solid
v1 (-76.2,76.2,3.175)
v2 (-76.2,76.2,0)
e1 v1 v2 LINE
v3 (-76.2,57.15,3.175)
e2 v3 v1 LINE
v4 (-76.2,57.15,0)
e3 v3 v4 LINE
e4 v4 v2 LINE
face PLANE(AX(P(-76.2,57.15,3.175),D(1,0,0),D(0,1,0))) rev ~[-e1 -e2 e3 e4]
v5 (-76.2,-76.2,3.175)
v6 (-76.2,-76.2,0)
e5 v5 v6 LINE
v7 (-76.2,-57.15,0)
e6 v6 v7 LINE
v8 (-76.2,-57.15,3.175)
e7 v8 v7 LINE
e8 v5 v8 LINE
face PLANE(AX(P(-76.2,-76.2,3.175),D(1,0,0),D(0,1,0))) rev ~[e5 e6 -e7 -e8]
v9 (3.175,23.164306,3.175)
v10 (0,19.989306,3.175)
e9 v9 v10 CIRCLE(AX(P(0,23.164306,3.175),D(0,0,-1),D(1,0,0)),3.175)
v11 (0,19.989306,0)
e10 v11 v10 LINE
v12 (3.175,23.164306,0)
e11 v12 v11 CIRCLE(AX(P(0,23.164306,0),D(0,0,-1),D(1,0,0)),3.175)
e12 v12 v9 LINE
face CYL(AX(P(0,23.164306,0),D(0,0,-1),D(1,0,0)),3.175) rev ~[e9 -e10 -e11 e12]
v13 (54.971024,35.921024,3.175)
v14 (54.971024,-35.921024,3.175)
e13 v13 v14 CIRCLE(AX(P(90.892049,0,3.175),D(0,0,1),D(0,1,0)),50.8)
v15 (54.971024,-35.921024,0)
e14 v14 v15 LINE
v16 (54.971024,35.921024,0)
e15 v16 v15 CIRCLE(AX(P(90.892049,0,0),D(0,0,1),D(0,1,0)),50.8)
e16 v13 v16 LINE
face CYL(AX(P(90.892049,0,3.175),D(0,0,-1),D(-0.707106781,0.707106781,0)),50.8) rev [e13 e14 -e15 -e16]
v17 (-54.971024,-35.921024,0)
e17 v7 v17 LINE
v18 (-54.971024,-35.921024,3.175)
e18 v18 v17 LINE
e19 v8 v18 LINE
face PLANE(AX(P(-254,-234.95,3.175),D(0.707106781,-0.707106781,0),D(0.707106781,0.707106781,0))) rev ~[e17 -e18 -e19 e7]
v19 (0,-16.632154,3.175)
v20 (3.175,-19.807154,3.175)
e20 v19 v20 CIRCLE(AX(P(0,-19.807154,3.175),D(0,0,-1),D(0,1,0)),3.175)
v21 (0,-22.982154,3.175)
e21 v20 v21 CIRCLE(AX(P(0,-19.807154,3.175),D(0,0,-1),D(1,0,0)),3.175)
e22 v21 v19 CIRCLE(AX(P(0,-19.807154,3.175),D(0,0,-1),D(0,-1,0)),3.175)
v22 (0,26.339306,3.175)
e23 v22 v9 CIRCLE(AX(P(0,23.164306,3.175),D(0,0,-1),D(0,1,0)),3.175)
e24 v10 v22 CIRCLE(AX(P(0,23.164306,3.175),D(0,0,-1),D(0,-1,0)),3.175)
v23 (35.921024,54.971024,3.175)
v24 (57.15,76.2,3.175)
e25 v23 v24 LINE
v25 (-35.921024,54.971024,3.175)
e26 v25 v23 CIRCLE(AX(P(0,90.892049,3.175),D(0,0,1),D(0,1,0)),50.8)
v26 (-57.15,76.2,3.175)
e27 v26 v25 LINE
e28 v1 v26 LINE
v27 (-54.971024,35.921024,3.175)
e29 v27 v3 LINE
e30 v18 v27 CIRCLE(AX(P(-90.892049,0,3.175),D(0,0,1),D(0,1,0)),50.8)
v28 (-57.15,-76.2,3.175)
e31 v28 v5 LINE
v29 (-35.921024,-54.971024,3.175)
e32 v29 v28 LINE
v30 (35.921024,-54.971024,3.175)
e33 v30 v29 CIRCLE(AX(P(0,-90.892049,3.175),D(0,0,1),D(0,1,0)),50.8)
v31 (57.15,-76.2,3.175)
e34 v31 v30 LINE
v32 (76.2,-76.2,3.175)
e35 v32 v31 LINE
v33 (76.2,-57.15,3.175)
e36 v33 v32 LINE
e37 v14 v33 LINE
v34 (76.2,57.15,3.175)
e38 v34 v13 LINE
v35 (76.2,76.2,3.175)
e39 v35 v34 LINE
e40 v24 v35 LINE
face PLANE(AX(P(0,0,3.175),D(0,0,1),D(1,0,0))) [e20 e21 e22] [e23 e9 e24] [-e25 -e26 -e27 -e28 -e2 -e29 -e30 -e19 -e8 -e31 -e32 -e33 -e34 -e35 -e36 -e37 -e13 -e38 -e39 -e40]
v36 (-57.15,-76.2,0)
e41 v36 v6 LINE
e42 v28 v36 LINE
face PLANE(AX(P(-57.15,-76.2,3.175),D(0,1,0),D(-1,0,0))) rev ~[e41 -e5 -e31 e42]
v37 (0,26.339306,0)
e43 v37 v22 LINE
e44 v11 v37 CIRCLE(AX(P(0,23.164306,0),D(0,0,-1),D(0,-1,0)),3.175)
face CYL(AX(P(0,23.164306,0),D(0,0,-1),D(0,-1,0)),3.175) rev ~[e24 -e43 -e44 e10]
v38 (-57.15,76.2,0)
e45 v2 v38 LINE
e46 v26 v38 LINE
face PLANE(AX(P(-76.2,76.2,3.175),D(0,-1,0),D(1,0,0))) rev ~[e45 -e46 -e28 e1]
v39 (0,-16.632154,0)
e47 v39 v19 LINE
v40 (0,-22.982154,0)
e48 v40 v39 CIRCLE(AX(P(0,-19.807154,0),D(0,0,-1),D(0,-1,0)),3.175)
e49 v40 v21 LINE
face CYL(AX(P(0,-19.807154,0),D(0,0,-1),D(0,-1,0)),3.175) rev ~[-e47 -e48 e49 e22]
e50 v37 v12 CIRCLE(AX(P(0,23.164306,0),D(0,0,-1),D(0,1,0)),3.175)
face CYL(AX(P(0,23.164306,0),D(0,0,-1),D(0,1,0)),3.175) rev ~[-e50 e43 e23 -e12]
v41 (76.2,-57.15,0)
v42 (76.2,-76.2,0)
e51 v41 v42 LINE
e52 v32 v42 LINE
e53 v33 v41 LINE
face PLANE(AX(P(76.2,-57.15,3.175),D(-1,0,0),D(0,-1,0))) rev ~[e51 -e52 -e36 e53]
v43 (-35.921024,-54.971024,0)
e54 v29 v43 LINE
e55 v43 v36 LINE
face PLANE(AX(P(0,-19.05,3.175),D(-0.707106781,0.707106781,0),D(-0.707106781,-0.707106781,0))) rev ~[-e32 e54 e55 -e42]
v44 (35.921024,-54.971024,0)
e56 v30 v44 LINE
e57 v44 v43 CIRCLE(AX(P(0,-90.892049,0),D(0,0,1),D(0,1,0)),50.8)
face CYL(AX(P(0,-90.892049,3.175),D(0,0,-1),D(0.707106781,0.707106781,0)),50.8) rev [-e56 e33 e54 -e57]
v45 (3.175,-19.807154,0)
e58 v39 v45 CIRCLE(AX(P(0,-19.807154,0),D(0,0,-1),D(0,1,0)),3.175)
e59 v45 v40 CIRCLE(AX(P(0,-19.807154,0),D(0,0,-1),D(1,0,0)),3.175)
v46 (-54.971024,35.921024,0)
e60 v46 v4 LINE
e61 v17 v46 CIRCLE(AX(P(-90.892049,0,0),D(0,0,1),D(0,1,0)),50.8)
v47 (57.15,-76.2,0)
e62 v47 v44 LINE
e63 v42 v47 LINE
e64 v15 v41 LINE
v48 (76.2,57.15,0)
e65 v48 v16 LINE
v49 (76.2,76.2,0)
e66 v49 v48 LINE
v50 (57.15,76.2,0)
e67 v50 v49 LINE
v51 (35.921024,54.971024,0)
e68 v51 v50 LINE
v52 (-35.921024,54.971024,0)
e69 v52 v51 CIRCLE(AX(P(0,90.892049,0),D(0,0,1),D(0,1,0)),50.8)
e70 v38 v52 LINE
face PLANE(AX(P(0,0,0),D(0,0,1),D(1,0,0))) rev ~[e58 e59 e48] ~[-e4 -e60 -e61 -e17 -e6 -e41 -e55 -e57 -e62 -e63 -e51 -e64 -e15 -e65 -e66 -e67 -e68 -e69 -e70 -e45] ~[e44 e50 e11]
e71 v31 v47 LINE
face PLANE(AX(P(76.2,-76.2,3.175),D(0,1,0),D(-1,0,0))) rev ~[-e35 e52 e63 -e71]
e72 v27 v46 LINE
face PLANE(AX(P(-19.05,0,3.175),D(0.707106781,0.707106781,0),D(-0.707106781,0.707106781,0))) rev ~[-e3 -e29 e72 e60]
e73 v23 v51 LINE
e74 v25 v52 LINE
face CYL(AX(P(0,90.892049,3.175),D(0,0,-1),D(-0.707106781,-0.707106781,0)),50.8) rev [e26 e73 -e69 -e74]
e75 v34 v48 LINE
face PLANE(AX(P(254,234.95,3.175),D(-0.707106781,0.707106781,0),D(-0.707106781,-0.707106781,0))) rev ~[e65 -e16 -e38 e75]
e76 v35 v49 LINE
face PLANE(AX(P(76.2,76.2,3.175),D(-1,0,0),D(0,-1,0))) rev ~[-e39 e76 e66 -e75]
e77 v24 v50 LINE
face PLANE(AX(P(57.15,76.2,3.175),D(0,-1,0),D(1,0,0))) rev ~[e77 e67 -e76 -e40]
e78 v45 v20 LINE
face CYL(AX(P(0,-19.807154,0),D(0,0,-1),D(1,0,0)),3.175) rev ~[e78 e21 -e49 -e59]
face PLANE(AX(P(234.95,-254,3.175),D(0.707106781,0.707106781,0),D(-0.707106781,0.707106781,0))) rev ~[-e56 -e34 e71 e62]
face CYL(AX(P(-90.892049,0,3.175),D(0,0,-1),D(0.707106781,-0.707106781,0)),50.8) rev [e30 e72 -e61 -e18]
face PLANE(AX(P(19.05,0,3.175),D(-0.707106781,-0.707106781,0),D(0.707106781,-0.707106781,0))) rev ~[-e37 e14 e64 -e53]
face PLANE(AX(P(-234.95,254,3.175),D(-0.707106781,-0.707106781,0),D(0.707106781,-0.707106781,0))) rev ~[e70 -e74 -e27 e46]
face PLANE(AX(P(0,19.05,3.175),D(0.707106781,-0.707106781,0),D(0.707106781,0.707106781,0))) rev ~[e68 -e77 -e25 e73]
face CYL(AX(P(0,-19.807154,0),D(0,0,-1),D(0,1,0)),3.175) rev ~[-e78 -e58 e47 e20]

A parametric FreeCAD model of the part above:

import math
import FreeCAD as App
import Part
import Sketcher
Q = App.Units.Quantity


def edges_at(feature, points):
    """Names of the edges that pass closest to the given points."""
    edges = feature.Shape.Edges
    near = lambda p: min(range(len(edges)), key=lambda i: edges[i].distToShape(Part.Vertex(*p))[0])
    return sorted({f"Edge{near(p) + 1}" for p in points})

doc = App.newDocument("Part")
params = doc.addObject("Spreadsheet::Sheet", "Params")
for row, (alias, value) in enumerate([
    ("sketch1_width", "20 in"),
    ("pad1_length", "0.125 in"),
    ("sketch2_width", "18.5 in"),
    ("fillet_radius", "2 in"),
    ("sketch3_radius", "0.0625 in"),
    ("sketch3_radius2", "0.125 in"),
    ("sketch4_diameter", "0.125 in"),
    ("sketch4_width", "0.75 in"),
], start=1):
    params.set(f"A{row}", alias)
    params.set(f"B{row}", "=" + value)
    params.setAlias(f"B{row}", alias)

body = doc.addObject("PartDesign::Body", "Body")

# Sketch on XY plane
sketch1 = body.newObject("Sketcher::SketchObject", "Sketch")
sketch1.AttachmentSupport = (doc.getObject("XY_Plane"), [""])
sketch1.MapMode = "FlatFace"
sketch1.addGeometry(Part.LineSegment(App.Vector(-254, 254, 0), App.Vector(-254, -254, 0)), False)
sketch1.addGeometry(Part.LineSegment(App.Vector(-254, -254, 0), App.Vector(254, -254, 0)), False)
sketch1.addGeometry(Part.LineSegment(App.Vector(254, -254, 0), App.Vector(254, 254, 0)), False)
sketch1.addGeometry(Part.LineSegment(App.Vector(254, 254, 0), App.Vector(-254, 254, 0)), False)
sketch1.addConstraint(Sketcher.Constraint("Coincident", 0, 2, 1, 1))
sketch1.addConstraint(Sketcher.Constraint("Coincident", 1, 2, 2, 1))
sketch1.addConstraint(Sketcher.Constraint("Coincident", 2, 2, 3, 1))
sketch1.addConstraint(Sketcher.Constraint("Coincident", 3, 2, 0, 1))
sketch1.addConstraint(Sketcher.Constraint("Vertical", 0))
sketch1.addConstraint(Sketcher.Constraint("Horizontal", 1))
sketch1.addConstraint(Sketcher.Constraint("Vertical", 2))
sketch1.addConstraint(Sketcher.Constraint("Horizontal", 3))
sketch1.addConstraint(Sketcher.Constraint("Symmetric", 0, 2, 2, 2, -1, 1))
sketch1.addConstraint(Sketcher.Constraint("Equal", 3, 0))
sketch1.addConstraint(Sketcher.Constraint("DistanceX", 1, 1, 1, 2, Q("20 in")))
sketch1.setExpression("Constraints[10]", "Params.sketch1_width")
pad1 = body.newObject("PartDesign::Pad", "Pad")
pad1.Profile = sketch1
pad1.setExpression("Length", "Params.pad1_length")

# Sketch on XY plane
sketch2 = body.newObject("Sketcher::SketchObject", "Sketch001")
sketch2.AttachmentSupport = (doc.getObject("XY_Plane"), [""])
sketch2.MapMode = "FlatFace"
sketch2.AttachmentOffset = App.Placement(App.Vector(0, 0, 0.125 * 25.4), App.Rotation())
sketch2.addGeometry(Part.LineSegment(App.Vector(-19.05, 0, 0), App.Vector(-254, 234.95, 0)), False)
sketch2.addGeometry(Part.LineSegment(App.Vector(-254, 234.95, 0), App.Vector(-254, -234.95, 0)), False)
sketch2.addGeometry(Part.LineSegment(App.Vector(-254, -234.95, 0), App.Vector(-19.05, 0, 0)), False)
sketch2.addGeometry(Part.LineSegment(App.Vector(-234.95, 254, 0), App.Vector(0, 19.05, 0)), False)
sketch2.addGeometry(Part.LineSegment(App.Vector(0, 19.05, 0), App.Vector(234.95, 254, 0)), False)
sketch2.addGeometry(Part.LineSegment(App.Vector(234.95, 254, 0), App.Vector(-234.95, 254, 0)), False)
sketch2.addGeometry(Part.LineSegment(App.Vector(254, -234.95, 0), App.Vector(254, 234.95, 0)), False)
sketch2.addGeometry(Part.LineSegment(App.Vector(254, 234.95, 0), App.Vector(19.05, 0, 0)), False)
sketch2.addGeometry(Part.LineSegment(App.Vector(19.05, 0, 0), App.Vector(254, -234.95, 0)), False)
sketch2.addGeometry(Part.LineSegment(App.Vector(-234.95, -254, 0), App.Vector(234.95, -254, 0)), False)
sketch2.addGeometry(Part.LineSegment(App.Vector(234.95, -254, 0), App.Vector(0, -19.05, 0)), False)
sketch2.addGeometry(Part.LineSegment(App.Vector(0, -19.05, 0), App.Vector(-234.95, -254, 0)), False)
sketch2.addConstraint(Sketcher.Constraint("Coincident", 0, 2, 1, 1))
sketch2.addConstraint(Sketcher.Constraint("Coincident", 1, 2, 2, 1))
sketch2.addConstraint(Sketcher.Constraint("Coincident", 2, 2, 0, 1))
sketch2.addConstraint(Sketcher.Constraint("Coincident", 3, 2, 4, 1))
sketch2.addConstraint(Sketcher.Constraint("Coincident", 4, 2, 5, 1))
sketch2.addConstraint(Sketcher.Constraint("Coincident", 5, 2, 3, 1))
sketch2.addConstraint(Sketcher.Constraint("Coincident", 6, 2, 7, 1))
sketch2.addConstraint(Sketcher.Constraint("Coincident", 7, 2, 8, 1))
sketch2.addConstraint(Sketcher.Constraint("Coincident", 8, 2, 6, 1))
sketch2.addConstraint(Sketcher.Constraint("Coincident", 9, 2, 10, 1))
sketch2.addConstraint(Sketcher.Constraint("Coincident", 10, 2, 11, 1))
sketch2.addConstraint(Sketcher.Constraint("Coincident", 11, 2, 9, 1))
sketch2.addConstraint(Sketcher.Constraint("Vertical", 1))
sketch2.addConstraint(Sketcher.Constraint("Horizontal", 5))
sketch2.addConstraint(Sketcher.Constraint("Vertical", 6))
sketch2.addConstraint(Sketcher.Constraint("Horizontal", 9))
sketch2.addConstraint(Sketcher.Constraint("Symmetric", 1, 2, 6, 2, -1, 1))
sketch2.addConstraint(Sketcher.Constraint("Symmetric", 2, 2, 7, 2, -1, 1))
sketch2.addConstraint(Sketcher.Constraint("Symmetric", 5, 2, 9, 2, -1, 1))
sketch2.addConstraint(Sketcher.Constraint("Symmetric", 3, 2, 10, 2, -1, 1))
sketch2.addConstraint(Sketcher.Constraint("PointOnObject", 2, 2, -1))
sketch2.addConstraint(Sketcher.Constraint("PointOnObject", 3, 2, -2))
sketch2.addConstraint(Sketcher.Constraint("Perpendicular", 0, 2))
sketch2.addConstraint(Sketcher.Constraint("Perpendicular", 2, 3))
sketch2.addConstraint(Sketcher.Constraint("Perpendicular", 3, 4))
sketch2.addConstraint(Sketcher.Constraint("Perpendicular", 7, 8))
sketch2.addConstraint(Sketcher.Constraint("Perpendicular", 10, 11))
sketch2.addConstraint(Sketcher.Constraint("Horizontal", 0, 2, 6, 2))
sketch2.addConstraint(Sketcher.Constraint("Equal", 9, 1))
sketch2.addConstraint(Sketcher.Constraint("DistanceX", 5, 2, 5, 1, Q("18.5 in")))
sketch2.addConstraint(Sketcher.Constraint("DistanceX", 0, 2, -1, 1, Q("10 in")))
sketch2.addConstraint(Sketcher.Constraint("DistanceY", -1, 1, 4, 2, Q("10 in")))
sketch2.setExpression("Constraints[29]", "Params.sketch2_width")
pocket1 = body.newObject("PartDesign::Pocket", "Pocket")
pocket1.Profile = sketch2
pocket1.Type = "ThroughAll"
doc.recompute()

fillet = body.newObject("PartDesign::Fillet", "Fillet")
fillet.Base = (pocket1, edges_at(pocket1, [
    (-19.05, 0, 1.587),
    (0, -19.05, 1.587),
    (19.05, 0, 1.587),
    (0, 19.05, 1.587),
]))
fillet.setExpression("Radius", "Params.fillet_radius")

# Sketch on XY plane
sketch3 = body.newObject("Sketcher::SketchObject", "Sketch002")
sketch3.AttachmentSupport = (doc.getObject("XY_Plane"), [""])
sketch3.MapMode = "FlatFace"
sketch3.addGeometry(Part.ArcOfCircle(Part.Circle(App.Vector(-235.565272, 248.658633, 0), App.Vector(0, 0, 1), 1.5875), math.radians(-121.412172), math.radians(-80.00255)), False)
sketch3.addGeometry(Part.ArcOfCircle(Part.Circle(App.Vector(-235.565272, 248.658633, 0), App.Vector(0, 0, 1), 1.5875), math.radians(-162.821794), math.radians(-121.412172)), False)
sketch3.addGeometry(Part.ArcOfCircle(Part.Circle(App.Vector(-235.565272, 248.658633, 0), App.Vector(0, 0, 1), 1.5875), math.radians(0), math.radians(197.178206)), False)
sketch3.addGeometry(Part.ArcOfCircle(Part.Circle(App.Vector(-235.565272, 248.658633, 0), App.Vector(0, 0, 1), 1.5875), math.radians(-80.00255), math.radians(0)), False)
sketch3.addGeometry(Part.ArcOfCircle(Part.Circle(App.Vector(-247.698735, 244.907756, 0), App.Vector(0, 0, 1), 1.5875), math.radians(17.178206), math.radians(279.99745)), False)
sketch3.addGeometry(Part.ArcOfCircle(Part.Circle(App.Vector(-247.698735, 244.907756, 0), App.Vector(0, 0, 1), 1.5875), math.radians(0), math.radians(17.178206)), False)
sketch3.addGeometry(Part.ArcOfCircle(Part.Circle(App.Vector(-247.698735, 244.907756, 0), App.Vector(0, 0, 1), 1.5875), math.radians(-80.00255), math.radians(0)), False)
sketch3.addGeometry(Part.ArcOfCircle(Part.Circle(App.Vector(-245.49396, 232.400599, 0), App.Vector(0, 0, 1), 1.5875), math.radians(17.178206), math.radians(58.587828)), False)
sketch3.addGeometry(Part.ArcOfCircle(Part.Circle(App.Vector(-245.49396, 232.400599, 0), App.Vector(0, 0, 1), 1.5875), math.radians(0), math.radians(17.178206)), False)
sketch3.addGeometry(Part.ArcOfCircle(Part.Circle(App.Vector(-245.49396, 232.400599, 0), App.Vector(0, 0, 1), 1.5875), math.radians(99.99745), math.radians(360)), False)
sketch3.addGeometry(Part.ArcOfCircle(Part.Circle(App.Vector(-245.49396, 232.400599, 0), App.Vector(0, 0, 1), 1.5875), math.radians(58.587828), math.radians(99.99745)), False)
sketch3.addGeometry(Part.ArcOfCircle(Part.Circle(App.Vector(-233.360497, 236.151476, 0), App.Vector(0, 0, 1), 1.5875), math.radians(-162.821794), math.radians(0)), False)
sketch3.addGeometry(Part.ArcOfCircle(Part.Circle(App.Vector(-233.360497, 236.151476, 0), App.Vector(0, 0, 1), 1.5875), math.radians(99.99745), math.radians(197.178206)), False)
sketch3.addGeometry(Part.ArcOfCircle(Part.Circle(App.Vector(-233.360497, 236.151476, 0), App.Vector(0, 0, 1), 1.5875), math.radians(0), math.radians(99.99745)), False)
sketch3.addGeometry(Part.ArcOfCircle(Part.Circle(App.Vector(-233.360497, -244.907756, 0), App.Vector(0, 0, 1), 1.5875), math.radians(0), math.radians(99.99745)), False)
sketch3.addGeometry(Part.ArcOfCircle(Part.Circle(App.Vector(-233.360497, -244.907756, 0), App.Vector(0, 0, 1), 1.5875), math.radians(-162.821794), math.radians(0)), False)
sketch3.addGeometry(Part.ArcOfCircle(Part.Circle(App.Vector(-233.360497, -244.907756, 0), App.Vector(0, 0, 1), 1.5875), math.radians(99.99745), math.radians(197.178206)), False)
sketch3.addGeometry(Part.ArcOfCircle(Part.Circle(App.Vector(-245.49396, -248.658633, 0), App.Vector(0, 0, 1), 1.5875), math.radians(17.178206), math.radians(58.587828)), False)
sketch3.addGeometry(Part.ArcOfCircle(Part.Circle(App.Vector(-245.49396, -248.658633, 0), App.Vector(0, 0, 1), 1.5875), math.radians(0), math.radians(17.178206)), False)
sketch3.addGeometry(Part.ArcOfCircle(Part.Circle(App.Vector(-245.49396, -248.658633, 0), App.Vector(0, 0, 1), 1.5875), math.radians(99.99745), math.radians(360)), False)
sketch3.addGeometry(Part.ArcOfCircle(Part.Circle(App.Vector(-245.49396, -248.658633, 0), App.Vector(0, 0, 1), 1.5875), math.radians(58.587828), math.radians(99.99745)), False)
sketch3.addGeometry(Part.ArcOfCircle(Part.Circle(App.Vector(-247.698735, -236.151476, 0), App.Vector(0, 0, 1), 1.5875), math.radians(-80.00255), math.radians(0)), False)
sketch3.addGeometry(Part.ArcOfCircle(Part.Circle(App.Vector(-247.698735, -236.151476, 0), App.Vector(0, 0, 1), 1.5875), math.radians(17.178206), math.radians(279.99745)), False)
sketch3.addGeometry(Part.ArcOfCircle(Part.Circle(App.Vector(-247.698735, -236.151476, 0), App.Vector(0, 0, 1), 1.5875), math.radians(0), math.radians(17.178206)), False)
sketch3.addGeometry(Part.ArcOfCircle(Part.Circle(App.Vector(-235.565272, -232.400599, 0), App.Vector(0, 0, 1), 1.5875), math.radians(-80.00255), math.radians(0)), False)
sketch3.addGeometry(Part.ArcOfCircle(Part.Circle(App.Vector(-235.565272, -232.400599, 0), App.Vector(0, 0, 1), 1.5875), math.radians(-121.412172), math.radians(-80.00255)), False)
sketch3.addGeometry(Part.ArcOfCircle(Part.Circle(App.Vector(-235.565272, -232.400599, 0), App.Vector(0, 0, 1), 1.5875), math.radians(-162.821794), math.radians(-121.412172)), False)
sketch3.addGeometry(Part.ArcOfCircle(Part.Circle(App.Vector(-235.565272, -232.400599, 0), App.Vector(0, 0, 1), 1.5875), math.radians(0), math.radians(197.178206)), False)
sketch3.addGeometry(Part.ArcOfCircle(Part.Circle(App.Vector(247.698735, -244.907756, 0), App.Vector(0, 0, 1), 1.5875), math.radians(0), math.radians(99.99745)), False)
sketch3.addGeometry(Part.ArcOfCircle(Part.Circle(App.Vector(247.698735, -244.907756, 0), App.Vector(0, 0, 1), 1.5875), math.radians(-162.821794), math.radians(0)), False)
sketch3.addGeometry(Part.ArcOfCircle(Part.Circle(App.Vector(247.698735, -244.907756, 0), App.Vector(0, 0, 1), 1.5875), math.radians(99.99745), math.radians(197.178206)), False)
sketch3.addGeometry(Part.ArcOfCircle(Part.Circle(App.Vector(245.49396, -232.400599, 0), App.Vector(0, 0, 1), 1.5875), math.radians(-121.412172), math.radians(-80.00255)), False)
sketch3.addGeometry(Part.ArcOfCircle(Part.Circle(App.Vector(245.49396, -232.400599, 0), App.Vector(0, 0, 1), 1.5875), math.radians(-162.821794), math.radians(-121.412172)), False)
sketch3.addGeometry(Part.ArcOfCircle(Part.Circle(App.Vector(245.49396, -232.400599, 0), App.Vector(0, 0, 1), 1.5875), math.radians(0), math.radians(197.178206)), False)
sketch3.addGeometry(Part.ArcOfCircle(Part.Circle(App.Vector(245.49396, -232.400599, 0), App.Vector(0, 0, 1), 1.5875), math.radians(-80.00255), math.radians(0)), False)
sketch3.addGeometry(Part.ArcOfCircle(Part.Circle(App.Vector(233.360497, -236.151476, 0), App.Vector(0, 0, 1), 1.5875), math.radians(17.178206), math.radians(279.99745)), False)
sketch3.addGeometry(Part.ArcOfCircle(Part.Circle(App.Vector(233.360497, -236.151476, 0), App.Vector(0, 0, 1), 1.5875), math.radians(0), math.radians(17.178206)), False)
sketch3.addGeometry(Part.ArcOfCircle(Part.Circle(App.Vector(233.360497, -236.151476, 0), App.Vector(0, 0, 1), 1.5875), math.radians(-80.00255), math.radians(0)), False)
sketch3.addGeometry(Part.ArcOfCircle(Part.Circle(App.Vector(235.565272, -248.658633, 0), App.Vector(0, 0, 1), 1.5875), math.radians(58.587828), math.radians(99.99745)), False)
sketch3.addGeometry(Part.ArcOfCircle(Part.Circle(App.Vector(235.565272, -248.658633, 0), App.Vector(0, 0, 1), 1.5875), math.radians(17.178206), math.radians(58.587828)), False)
sketch3.addGeometry(Part.ArcOfCircle(Part.Circle(App.Vector(235.565272, -248.658633, 0), App.Vector(0, 0, 1), 1.5875), math.radians(0), math.radians(17.178206)), False)
sketch3.addGeometry(Part.ArcOfCircle(Part.Circle(App.Vector(235.565272, -248.658633, 0), App.Vector(0, 0, 1), 1.5875), math.radians(99.99745), math.radians(360)), False)
sketch3.addGeometry(Part.ArcOfCircle(Part.Circle(App.Vector(245.49396, 248.658633, 0), App.Vector(0, 0, 1), 1.5875), math.radians(-80.00255), math.radians(0)), False)
sketch3.addGeometry(Part.ArcOfCircle(Part.Circle(App.Vector(245.49396, 248.658633, 0), App.Vector(0, 0, 1), 1.5875), math.radians(-121.412172), math.radians(-80.00255)), False)
sketch3.addGeometry(Part.ArcOfCircle(Part.Circle(App.Vector(245.49396, 248.658633, 0), App.Vector(0, 0, 1), 1.5875), math.radians(-162.821794), math.radians(-121.412172)), False)
sketch3.addGeometry(Part.ArcOfCircle(Part.Circle(App.Vector(245.49396, 248.658633, 0), App.Vector(0, 0, 1), 1.5875), math.radians(0), math.radians(197.178206)), False)
sketch3.addGeometry(Part.ArcOfCircle(Part.Circle(App.Vector(233.360497, 244.907756, 0), App.Vector(0, 0, 1), 1.5875), math.radians(-80.00255), math.radians(0)), False)
sketch3.addGeometry(Part.ArcOfCircle(Part.Circle(App.Vector(233.360497, 244.907756, 0), App.Vector(0, 0, 1), 1.5875), math.radians(17.178206), math.radians(279.99745)), False)
sketch3.addGeometry(Part.ArcOfCircle(Part.Circle(App.Vector(233.360497, 244.907756, 0), App.Vector(0, 0, 1), 1.5875), math.radians(0), math.radians(17.178206)), False)
sketch3.addGeometry(Part.ArcOfCircle(Part.Circle(App.Vector(235.565272, 232.400599, 0), App.Vector(0, 0, 1), 1.5875), math.radians(58.587828), math.radians(99.99745)), False)
sketch3.addGeometry(Part.ArcOfCircle(Part.Circle(App.Vector(235.565272, 232.400599, 0), App.Vector(0, 0, 1), 1.5875), math.radians(17.178206), math.radians(58.587828)), False)
sketch3.addGeometry(Part.ArcOfCircle(Part.Circle(App.Vector(235.565272, 232.400599, 0), App.Vector(0, 0, 1), 1.5875), math.radians(0), math.radians(17.178206)), False)
sketch3.addGeometry(Part.ArcOfCircle(Part.Circle(App.Vector(235.565272, 232.400599, 0), App.Vector(0, 0, 1), 1.5875), math.radians(99.99745), math.radians(360)), False)
sketch3.addGeometry(Part.ArcOfCircle(Part.Circle(App.Vector(247.698735, 236.151476, 0), App.Vector(0, 0, 1), 1.5875), math.radians(99.99745), math.radians(197.178206)), False)
sketch3.addGeometry(Part.ArcOfCircle(Part.Circle(App.Vector(247.698735, 236.151476, 0), App.Vector(0, 0, 1), 1.5875), math.radians(0), math.radians(99.99745)), False)
sketch3.addGeometry(Part.ArcOfCircle(Part.Circle(App.Vector(247.698735, 236.151476, 0), App.Vector(0, 0, 1), 1.5875), math.radians(-162.821794), math.radians(0)), False)
sketch3.addGeometry(Part.ArcOfCircle(Part.Circle(App.Vector(0, -19.807154, 0), App.Vector(0, 0, 1), 3.175), math.radians(0), math.radians(90)), False)
sketch3.addGeometry(Part.ArcOfCircle(Part.Circle(App.Vector(0, -19.807154, 0), App.Vector(0, 0, 1), 3.175), math.radians(-90), math.radians(0)), False)
sketch3.addGeometry(Part.ArcOfCircle(Part.Circle(App.Vector(0, -19.807154, 0), App.Vector(0, 0, 1), 3.175), math.radians(90), math.radians(270)), False)
sketch3.addGeometry(Part.ArcOfCircle(Part.Circle(App.Vector(0, 23.164306, 0), App.Vector(0, 0, 1), 3.175), math.radians(90), math.radians(270)), False)
sketch3.addGeometry(Part.ArcOfCircle(Part.Circle(App.Vector(0, 23.164306, 0), App.Vector(0, 0, 1), 3.175), math.radians(0), math.radians(90)), False)
sketch3.addGeometry(Part.ArcOfCircle(Part.Circle(App.Vector(0, 23.164306, 0), App.Vector(0, 0, 1), 3.175), math.radians(-90), math.radians(0)), False)
sketch3.addConstraint(Sketcher.Constraint("Tangent", 0, 1, 1, 2))
sketch3.addConstraint(Sketcher.Constraint("Tangent", 1, 1, 2, 2))
sketch3.addConstraint(Sketcher.Constraint("Tangent", 2, 1, 3, 2))
sketch3.addConstraint(Sketcher.Constraint("Tangent", 3, 1, 0, 2))
sketch3.addConstraint(Sketcher.Constraint("Tangent", 4, 1, 5, 2))
sketch3.addConstraint(Sketcher.Constraint("Tangent", 5, 1, 6, 2))
sketch3.addConstraint(Sketcher.Constraint("Tangent", 6, 1, 4, 2))
sketch3.addConstraint(Sketcher.Constraint("Tangent", 7, 1, 8, 2))
sketch3.addConstraint(Sketcher.Constraint("Tangent", 8, 1, 9, 2))
sketch3.addConstraint(Sketcher.Constraint("Tangent", 9, 1, 10, 2))
sketch3.addConstraint(Sketcher.Constraint("Tangent", 10, 1, 7, 2))
sketch3.addConstraint(Sketcher.Constraint("Tangent", 11, 1, 12, 2))
sketch3.addConstraint(Sketcher.Constraint("Tangent", 12, 1, 13, 2))
sketch3.addConstraint(Sketcher.Constraint("Tangent", 13, 1, 11, 2))
sketch3.addConstraint(Sketcher.Constraint("Tangent", 14, 1, 15, 2))
sketch3.addConstraint(Sketcher.Constraint("Tangent", 15, 1, 16, 2))
sketch3.addConstraint(Sketcher.Constraint("Tangent", 16, 1, 14, 2))
sketch3.addConstraint(Sketcher.Constraint("Tangent", 17, 1, 18, 2))
sketch3.addConstraint(Sketcher.Constraint("Tangent", 18, 1, 19, 2))
sketch3.addConstraint(Sketcher.Constraint("Tangent", 19, 1, 20, 2))
sketch3.addConstraint(Sketcher.Constraint("Tangent", 20, 1, 17, 2))
sketch3.addConstraint(Sketcher.Constraint("Tangent", 21, 1, 22, 2))
sketch3.addConstraint(Sketcher.Constraint("Tangent", 22, 1, 23, 2))
sketch3.addConstraint(Sketcher.Constraint("Tangent", 23, 1, 21, 2))
sketch3.addConstraint(Sketcher.Constraint("Tangent", 24, 1, 25, 2))
sketch3.addConstraint(Sketcher.Constraint("Tangent", 25, 1, 26, 2))
sketch3.addConstraint(Sketcher.Constraint("Tangent", 26, 1, 27, 2))
sketch3.addConstraint(Sketcher.Constraint("Tangent", 27, 1, 24, 2))
sketch3.addConstraint(Sketcher.Constraint("Tangent", 28, 1, 29, 2))
sketch3.addConstraint(Sketcher.Constraint("Tangent", 29, 1, 30, 2))
sketch3.addConstraint(Sketcher.Constraint("Tangent", 30, 1, 28, 2))
sketch3.addConstraint(Sketcher.Constraint("Tangent", 31, 1, 32, 2))
sketch3.addConstraint(Sketcher.Constraint("Tangent", 32, 1, 33, 2))
sketch3.addConstraint(Sketcher.Constraint("Tangent", 33, 1, 34, 2))
sketch3.addConstraint(Sketcher.Constraint("Tangent", 34, 1, 31, 2))
sketch3.addConstraint(Sketcher.Constraint("Tangent", 35, 1, 36, 2))
sketch3.addConstraint(Sketcher.Constraint("Tangent", 36, 1, 37, 2))
sketch3.addConstraint(Sketcher.Constraint("Tangent", 37, 1, 35, 2))
sketch3.addConstraint(Sketcher.Constraint("Tangent", 38, 1, 39, 2))
sketch3.addConstraint(Sketcher.Constraint("Tangent", 39, 1, 40, 2))
sketch3.addConstraint(Sketcher.Constraint("Tangent", 40, 1, 41, 2))
sketch3.addConstraint(Sketcher.Constraint("Tangent", 41, 1, 38, 2))
sketch3.addConstraint(Sketcher.Constraint("Tangent", 42, 1, 43, 2))
sketch3.addConstraint(Sketcher.Constraint("Tangent", 43, 1, 44, 2))
sketch3.addConstraint(Sketcher.Constraint("Tangent", 44, 1, 45, 2))
sketch3.addConstraint(Sketcher.Constraint("Tangent", 45, 1, 42, 2))
sketch3.addConstraint(Sketcher.Constraint("Tangent", 46, 1, 47, 2))
sketch3.addConstraint(Sketcher.Constraint("Tangent", 47, 1, 48, 2))
sketch3.addConstraint(Sketcher.Constraint("Tangent", 48, 1, 46, 2))
sketch3.addConstraint(Sketcher.Constraint("Tangent", 49, 1, 50, 2))
sketch3.addConstraint(Sketcher.Constraint("Tangent", 50, 1, 51, 2))
sketch3.addConstraint(Sketcher.Constraint("Tangent", 51, 1, 52, 2))
sketch3.addConstraint(Sketcher.Constraint("Tangent", 52, 1, 49, 2))
sketch3.addConstraint(Sketcher.Constraint("Tangent", 53, 1, 54, 2))
sketch3.addConstraint(Sketcher.Constraint("Tangent", 54, 1, 55, 2))
sketch3.addConstraint(Sketcher.Constraint("Tangent", 55, 1, 53, 2))
sketch3.addConstraint(Sketcher.Constraint("Tangent", 56, 1, 57, 2))
sketch3.addConstraint(Sketcher.Constraint("Tangent", 57, 1, 58, 2))
sketch3.addConstraint(Sketcher.Constraint("Tangent", 58, 1, 56, 2))
sketch3.addConstraint(Sketcher.Constraint("Tangent", 59, 1, 60, 2))
sketch3.addConstraint(Sketcher.Constraint("Tangent", 60, 1, 61, 2))
sketch3.addConstraint(Sketcher.Constraint("Tangent", 61, 1, 59, 2))
sketch3.addConstraint(Sketcher.Constraint("Equal", 0, 1))
sketch3.addConstraint(Sketcher.Constraint("Equal", 3, 4))
sketch3.addConstraint(Sketcher.Constraint("Equal", 6, 7))
sketch3.addConstraint(Sketcher.Constraint("Equal", 7, 8))
sketch3.addConstraint(Sketcher.Constraint("Equal", 10, 11))
sketch3.addConstraint(Sketcher.Constraint("Equal", 13, 14))
sketch3.addConstraint(Sketcher.Constraint("Equal", 16, 17))
sketch3.addConstraint(Sketcher.Constraint("Equal", 17, 18))
sketch3.addConstraint(Sketcher.Constraint("Equal", 20, 21))
sketch3.addConstraint(Sketcher.Constraint("Equal", 23, 24))
sketch3.addConstraint(Sketcher.Constraint("Equal", 24, 25))
sketch3.addConstraint(Sketcher.Constraint("Equal", 27, 28))
sketch3.addConstraint(Sketcher.Constraint("Equal", 30, 31))
sketch3.addConstraint(Sketcher.Constraint("Equal", 31, 32))
sketch3.addConstraint(Sketcher.Constraint("Equal", 34, 35))
sketch3.addConstraint(Sketcher.Constraint("Equal", 37, 38))
sketch3.addConstraint(Sketcher.Constraint("Equal", 38, 39))
sketch3.addConstraint(Sketcher.Constraint("Equal", 41, 42))
sketch3.addConstraint(Sketcher.Constraint("Equal", 42, 43))
sketch3.addConstraint(Sketcher.Constraint("Equal", 45, 46))
sketch3.addConstraint(Sketcher.Constraint("Equal", 48, 49))
sketch3.addConstraint(Sketcher.Constraint("Equal", 49, 50))
sketch3.addConstraint(Sketcher.Constraint("Equal", 52, 53))
sketch3.addConstraint(Sketcher.Constraint("Equal", 58, 59))
sketch3.addConstraint(Sketcher.Constraint("Symmetric", 4, 3, 28, 3, -1, 1))
sketch3.addConstraint(Sketcher.Constraint("Symmetric", 7, 3, 31, 3, -1, 1))
sketch3.addConstraint(Sketcher.Constraint("Symmetric", 11, 3, 35, 3, -1, 1))
sketch3.addConstraint(Sketcher.Constraint("Symmetric", 0, 3, 38, 3, -1, 1))
sketch3.addConstraint(Sketcher.Constraint("Symmetric", 17, 3, 42, 3, -1, 1))
sketch3.addConstraint(Sketcher.Constraint("Symmetric", 14, 3, 46, 3, -1, 1))
sketch3.addConstraint(Sketcher.Constraint("Symmetric", 24, 3, 49, 3, -1, 1))
sketch3.addConstraint(Sketcher.Constraint("Symmetric", 21, 3, 53, 3, -1, 1))
sketch3.addConstraint(Sketcher.Constraint("PointOnObject", 56, 3, -2))
sketch3.addConstraint(Sketcher.Constraint("PointOnObject", 59, 3, -2))
sketch3.addConstraint(Sketcher.Constraint("PointOnObject", 57, 1, -2))
sketch3.addConstraint(Sketcher.Constraint("PointOnObject", 58, 1, -2))
sketch3.addConstraint(Sketcher.Constraint("PointOnObject", 59, 1, -2))
sketch3.addConstraint(Sketcher.Constraint("PointOnObject", 61, 1, -2))
sketch3.addConstraint(Sketcher.Constraint("Horizontal", 16, 3, 28, 3))
sketch3.addConstraint(Sketcher.Constraint("Horizontal", 27, 3, 31, 3))
sketch3.addConstraint(Sketcher.Constraint("Horizontal", 23, 3, 35, 3))
sketch3.addConstraint(Sketcher.Constraint("Horizontal", 20, 3, 38, 3))
sketch3.addConstraint(Sketcher.Constraint("Horizontal", 45, 3, 2, 1))
sketch3.addConstraint(Sketcher.Constraint("Horizontal", 48, 3, 5, 1))
sketch3.addConstraint(Sketcher.Constraint("Horizontal", 52, 3, 8, 1))
sketch3.addConstraint(Sketcher.Constraint("Horizontal", 55, 3, 13, 1))
sketch3.addConstraint(Sketcher.Constraint("Horizontal", 30, 3, 14, 1))
sketch3.addConstraint(Sketcher.Constraint("Horizontal", 41, 3, 18, 1))
sketch3.addConstraint(Sketcher.Constraint("Horizontal", 37, 3, 23, 1))
sketch3.addConstraint(Sketcher.Constraint("Horizontal", 34, 3, 27, 1))
sketch3.addConstraint(Sketcher.Constraint("Horizontal", 14, 1, 28, 1))
sketch3.addConstraint(Sketcher.Constraint("Horizontal", 15, 1, 29, 1))
sketch3.addConstraint(Sketcher.Constraint("Horizontal", 16, 1, 30, 1))
sketch3.addConstraint(Sketcher.Constraint("Horizontal", 25, 1, 31, 1))
sketch3.addConstraint(Sketcher.Constraint("Horizontal", 26, 1, 32, 1))
sketch3.addConstraint(Sketcher.Constraint("Horizontal", 27, 1, 33, 1))
sketch3.addConstraint(Sketcher.Constraint("Horizontal", 24, 1, 34, 1))
sketch3.addConstraint(Sketcher.Constraint("Horizontal", 22, 1, 35, 1))
sketch3.addConstraint(Sketcher.Constraint("Horizontal", 23, 1, 36, 1))
sketch3.addConstraint(Sketcher.Constraint("Horizontal", 21, 1, 37, 1))
sketch3.addConstraint(Sketcher.Constraint("Horizontal", 20, 1, 38, 1))
sketch3.addConstraint(Sketcher.Constraint("Horizontal", 17, 1, 39, 1))
sketch3.addConstraint(Sketcher.Constraint("Horizontal", 18, 1, 40, 1))
sketch3.addConstraint(Sketcher.Constraint("Horizontal", 19, 1, 41, 1))
sketch3.addConstraint(Sketcher.Constraint("Horizontal", 3, 1, 42, 1))
sketch3.addConstraint(Sketcher.Constraint("Horizontal", 0, 1, 43, 1))
sketch3.addConstraint(Sketcher.Constraint("Horizontal", 1, 1, 44, 1))
sketch3.addConstraint(Sketcher.Constraint("Horizontal", 2, 1, 45, 1))
sketch3.addConstraint(Sketcher.Constraint("Horizontal", 6, 1, 46, 1))
sketch3.addConstraint(Sketcher.Constraint("Horizontal", 4, 1, 47, 1))
sketch3.addConstraint(Sketcher.Constraint("Horizontal", 5, 1, 48, 1))
sketch3.addConstraint(Sketcher.Constraint("Horizontal", 10, 1, 49, 1))
sketch3.addConstraint(Sketcher.Constraint("Horizontal", 7, 1, 50, 1))
sketch3.addConstraint(Sketcher.Constraint("Horizontal", 8, 1, 51, 1))
sketch3.addConstraint(Sketcher.Constraint("Horizontal", 9, 1, 52, 1))
sketch3.addConstraint(Sketcher.Constraint("Horizontal", 12, 1, 53, 1))
sketch3.addConstraint(Sketcher.Constraint("Horizontal", 13, 1, 54, 1))
sketch3.addConstraint(Sketcher.Constraint("Horizontal", 11, 1, 55, 1))
sketch3.addConstraint(Sketcher.Constraint("Horizontal", 58, 3, 56, 1))
sketch3.addConstraint(Sketcher.Constraint("Horizontal", 61, 3, 60, 1))
sketch3.addConstraint(Sketcher.Constraint("Vertical", 13, 3, 14, 3))
sketch3.addConstraint(Sketcher.Constraint("Vertical", 10, 3, 17, 3))
sketch3.addConstraint(Sketcher.Constraint("Vertical", 6, 3, 21, 3))
sketch3.addConstraint(Sketcher.Constraint("Vertical", 3, 3, 24, 3))
sketch3.addConstraint(Sketcher.Constraint("Vertical", 11, 1, 15, 1))
sketch3.addConstraint(Sketcher.Constraint("Vertical", 12, 1, 16, 1))
sketch3.addConstraint(Sketcher.Constraint("Vertical", 7, 1, 17, 1))
sketch3.addConstraint(Sketcher.Constraint("Vertical", 9, 1, 19, 1))
sketch3.addConstraint(Sketcher.Constraint("Vertical", 10, 1, 20, 1))
sketch3.addConstraint(Sketcher.Constraint("Vertical", 6, 1, 21, 1))
sketch3.addConstraint(Sketcher.Constraint("Vertical", 4, 1, 22, 1))
sketch3.addConstraint(Sketcher.Constraint("Vertical", 3, 1, 24, 1))
sketch3.addConstraint(Sketcher.Constraint("Vertical", 0, 1, 25, 1))
sketch3.addConstraint(Sketcher.Constraint("Vertical", 1, 1, 26, 1))
sketch3.addConstraint(Sketcher.Constraint("Radius", 0, Q("0.0625 in")))
sketch3.addConstraint(Sketcher.Constraint("Radius", 56, Q("0.125 in")))
sketch3.addConstraint(Sketcher.Constraint("DistanceY", -1, 1, 7, 3, 232.400599))
sketch3.addConstraint(Sketcher.Constraint("DistanceX", 7, 3, -1, 1, 245.49396))
sketch3.addConstraint(Sketcher.Constraint("DistanceY", -1, 1, 3, 1, 247.095238))
sketch3.addConstraint(Sketcher.Constraint("DistanceX", 4, 1, -1, 1, 246.182052))
sketch3.addConstraint(Sketcher.Constraint("DistanceY", -1, 1, 6, 1, 243.344361))
sketch3.addConstraint(Sketcher.Constraint("DistanceY", -1, 1, 7, 1, 232.869459))
sketch3.addConstraint(Sketcher.Constraint("DistanceX", 10, 1, -1, 1, 244.666569))
sketch3.addConstraint(Sketcher.Constraint("DistanceX", 11, 1, -1, 1, 234.87718))
sketch3.addConstraint(Sketcher.Constraint("DistanceY", -1, 1, 12, 1, 237.714871))
sketch3.addConstraint(Sketcher.Constraint("DistanceY", 16, 1, -1, 1, 243.344361))
sketch3.addConstraint(Sketcher.Constraint("DistanceY", 19, 1, -1, 1, 247.095238))
sketch3.addConstraint(Sketcher.Constraint("DistanceY", 26, 1, -1, 1, 232.869459))
sketch3.addConstraint(Sketcher.Constraint("DistanceX", -1, 1, 29, 1, 246.182052))
sketch3.addConstraint(Sketcher.Constraint("DistanceX", -1, 1, 31, 1, 244.666569))
sketch3.addConstraint(Sketcher.Constraint("DistanceX", 0, 3, -1, 1, 235.565272))
sketch3.addConstraint(Sketcher.Constraint("DistanceY", -1, 1, 0, 3, 248.658633))
sketch3.addConstraint(Sketcher.Constraint("DistanceX", 4, 3, -1, 1, 247.698735))
sketch3.addConstraint(Sketcher.Constraint("DistanceY", -1, 1, 4, 3, 244.907756))
sketch3.addConstraint(Sketcher.Constraint("DistanceY", 56, 3, -1, 1, 19.807154))
sketch3.addConstraint(Sketcher.Constraint("DistanceY", -1, 1, 59, 3, 23.164306))
sketch3.setExpression("Constraints[156]", "Params.sketch3_radius")
sketch3.setExpression("Constraints[157]", "Params.sketch3_radius2")
pocket2 = body.newObject("PartDesign::Pocket", "Pocket001")
pocket2.Profile = sketch3
pocket2.Type = "ThroughAll"
pocket2.Reversed = True

# Sketch on XY plane
sketch4 = body.newObject("Sketcher::SketchObject", "Sketch003")
sketch4.AttachmentSupport = (doc.getObject("XY_Plane"), [""])
sketch4.MapMode = "FlatFace"
sketch4.AttachmentOffset = App.Placement(App.Vector(0, 0, 0.125 * 25.4), App.Rotation())
sketch4.addGeometry(Part.LineSegment(App.Vector(-76.2, 76.2, 0), App.Vector(-57.15, 76.2, 0)), False)
sketch4.addGeometry(Part.LineSegment(App.Vector(-57.15, 76.2, 0), App.Vector(-234.95, 254, 0)), False)
sketch4.addGeometry(Part.LineSegment(App.Vector(-234.95, 254, 0), App.Vector(-254, 254, 0)), False)
sketch4.addGeometry(Part.LineSegment(App.Vector(-254, 254, 0), App.Vector(-254, 234.95, 0)), False)
sketch4.addGeometry(Part.LineSegment(App.Vector(-254, 234.95, 0), App.Vector(-76.2, 57.15, 0)), False)
sketch4.addGeometry(Part.LineSegment(App.Vector(-76.2, 57.15, 0), App.Vector(-76.2, 76.2, 0)), False)
sketch4.addGeometry(Part.Circle(App.Vector(-245.49396, 232.400599, 0), App.Vector(0, 0, 1), 1.5875), False)
sketch4.addGeometry(Part.Circle(App.Vector(-233.360497, 236.151476, 0), App.Vector(0, 0, 1), 1.5875), False)
sketch4.addGeometry(Part.Circle(App.Vector(-247.698735, 244.907756, 0), App.Vector(0, 0, 1), 1.5875), False)
sketch4.addGeometry(Part.Circle(App.Vector(-235.565272, 248.658633, 0), App.Vector(0, 0, 1), 1.5875), False)
sketch4.addGeometry(Part.LineSegment(App.Vector(57.15, 76.2, 0), App.Vector(76.2, 76.2, 0)), False)
sketch4.addGeometry(Part.LineSegment(App.Vector(76.2, 76.2, 0), App.Vector(76.2, 57.15, 0)), False)
sketch4.addGeometry(Part.LineSegment(App.Vector(76.2, 57.15, 0), App.Vector(254, 234.95, 0)), False)
sketch4.addGeometry(Part.LineSegment(App.Vector(254, 234.95, 0), App.Vector(254, 254, 0)), False)
sketch4.addGeometry(Part.LineSegment(App.Vector(254, 254, 0), App.Vector(234.95, 254, 0)), False)
sketch4.addGeometry(Part.LineSegment(App.Vector(234.95, 254, 0), App.Vector(57.15, 76.2, 0)), False)
sketch4.addGeometry(Part.Circle(App.Vector(235.565272, 232.400599, 0), App.Vector(0, 0, 1), 1.5875), False)
sketch4.addGeometry(Part.Circle(App.Vector(247.698735, 236.151476, 0), App.Vector(0, 0, 1), 1.5875), False)
sketch4.addGeometry(Part.Circle(App.Vector(233.360497, 244.907756, 0), App.Vector(0, 0, 1), 1.5875), False)
sketch4.addGeometry(Part.Circle(App.Vector(245.49396, 248.658633, 0), App.Vector(0, 0, 1), 1.5875), False)
sketch4.addGeometry(Part.LineSegment(App.Vector(254, -234.95, 0), App.Vector(76.2, -57.15, 0)), False)
sketch4.addGeometry(Part.LineSegment(App.Vector(76.2, -57.15, 0), App.Vector(76.2, -76.2, 0)), False)
sketch4.addGeometry(Part.LineSegment(App.Vector(76.2, -76.2, 0), App.Vector(57.15, -76.2, 0)), False)
sketch4.addGeometry(Part.LineSegment(App.Vector(57.15, -76.2, 0), App.Vector(234.95, -254, 0)), False)
sketch4.addGeometry(Part.LineSegment(App.Vector(234.95, -254, 0), App.Vector(254, -254, 0)), False)
sketch4.addGeometry(Part.LineSegment(App.Vector(254, -254, 0), App.Vector(254, -234.95, 0)), False)
sketch4.addGeometry(Part.Circle(App.Vector(235.565272, -248.658633, 0), App.Vector(0, 0, 1), 1.5875), False)
sketch4.addGeometry(Part.Circle(App.Vector(247.698735, -244.907756, 0), App.Vector(0, 0, 1), 1.5875), False)
sketch4.addGeometry(Part.Circle(App.Vector(233.360497, -236.151476, 0), App.Vector(0, 0, 1), 1.5875), False)
sketch4.addGeometry(Part.Circle(App.Vector(245.49396, -232.400599, 0), App.Vector(0, 0, 1), 1.5875), False)
sketch4.addGeometry(Part.LineSegment(App.Vector(-76.2, -76.2, 0), App.Vector(-76.2, -57.15, 0)), False)
sketch4.addGeometry(Part.LineSegment(App.Vector(-76.2, -57.15, 0), App.Vector(-254, -234.95, 0)), False)
sketch4.addGeometry(Part.LineSegment(App.Vector(-254, -234.95, 0), App.Vector(-254, -254, 0)), False)
sketch4.addGeometry(Part.LineSegment(App.Vector(-254, -254, 0), App.Vector(-234.95, -254, 0)), False)
sketch4.addGeometry(Part.LineSegment(App.Vector(-234.95, -254, 0), App.Vector(-57.15, -76.2, 0)), False)
sketch4.addGeometry(Part.LineSegment(App.Vector(-57.15, -76.2, 0), App.Vector(-76.2, -76.2, 0)), False)
sketch4.addGeometry(Part.Circle(App.Vector(-245.49396, -248.658633, 0), App.Vector(0, 0, 1), 1.5875), False)
sketch4.addGeometry(Part.Circle(App.Vector(-233.360497, -244.907756, 0), App.Vector(0, 0, 1), 1.5875), False)
sketch4.addGeometry(Part.Circle(App.Vector(-247.698735, -236.151476, 0), App.Vector(0, 0, 1), 1.5875), False)
sketch4.addGeometry(Part.Circle(App.Vector(-235.565272, -232.400599, 0), App.Vector(0, 0, 1), 1.5875), False)
sketch4.addConstraint(Sketcher.Constraint("Coincident", 0, 2, 1, 1))
sketch4.addConstraint(Sketcher.Constraint("Coincident", 1, 2, 2, 1))
sketch4.addConstraint(Sketcher.Constraint("Coincident", 2, 2, 3, 1))
sketch4.addConstraint(Sketcher.Constraint("Coincident", 3, 2, 4, 1))
sketch4.addConstraint(Sketcher.Constraint("Coincident", 4, 2, 5, 1))
sketch4.addConstraint(Sketcher.Constraint("Coincident", 5, 2, 0, 1))
sketch4.addConstraint(Sketcher.Constraint("Coincident", 10, 2, 11, 1))
sketch4.addConstraint(Sketcher.Constraint("Coincident", 11, 2, 12, 1))
sketch4.addConstraint(Sketcher.Constraint("Coincident", 12, 2, 13, 1))
sketch4.addConstraint(Sketcher.Constraint("Coincident", 13, 2, 14, 1))
sketch4.addConstraint(Sketcher.Constraint("Coincident", 14, 2, 15, 1))
sketch4.addConstraint(Sketcher.Constraint("Coincident", 15, 2, 10, 1))
sketch4.addConstraint(Sketcher.Constraint("Coincident", 20, 2, 21, 1))
sketch4.addConstraint(Sketcher.Constraint("Coincident", 21, 2, 22, 1))
sketch4.addConstraint(Sketcher.Constraint("Coincident", 22, 2, 23, 1))
sketch4.addConstraint(Sketcher.Constraint("Coincident", 23, 2, 24, 1))
sketch4.addConstraint(Sketcher.Constraint("Coincident", 24, 2, 25, 1))
sketch4.addConstraint(Sketcher.Constraint("Coincident", 25, 2, 20, 1))
sketch4.addConstraint(Sketcher.Constraint("Coincident", 30, 2, 31, 1))
sketch4.addConstraint(Sketcher.Constraint("Coincident", 31, 2, 32, 1))
sketch4.addConstraint(Sketcher.Constraint("Coincident", 32, 2, 33, 1))
sketch4.addConstraint(Sketcher.Constraint("Coincident", 33, 2, 34, 1))
sketch4.addConstraint(Sketcher.Constraint("Coincident", 34, 2, 35, 1))
sketch4.addConstraint(Sketcher.Constraint("Coincident", 35, 2, 30, 1))
sketch4.addConstraint(Sketcher.Constraint("Horizontal", 0))
sketch4.addConstraint(Sketcher.Constraint("Horizontal", 2))
sketch4.addConstraint(Sketcher.Constraint("Vertical", 3))
sketch4.addConstraint(Sketcher.Constraint("Vertical", 5))
sketch4.addConstraint(Sketcher.Constraint("Horizontal", 10))
sketch4.addConstraint(Sketcher.Constraint("Vertical", 11))
sketch4.addConstraint(Sketcher.Constraint("Vertical", 13))
sketch4.addConstraint(Sketcher.Constraint("Horizontal", 14))
sketch4.addConstraint(Sketcher.Constraint("Vertical", 21))
sketch4.addConstraint(Sketcher.Constraint("Horizontal", 22))
sketch4.addConstraint(Sketcher.Constraint("Horizontal", 24))
sketch4.addConstraint(Sketcher.Constraint("Vertical", 25))
sketch4.addConstraint(Sketcher.Constraint("Vertical", 30))
sketch4.addConstraint(Sketcher.Constraint("Vertical", 32))
sketch4.addConstraint(Sketcher.Constraint("Horizontal", 33))
sketch4.addConstraint(Sketcher.Constraint("Horizontal", 35))
sketch4.addConstraint(Sketcher.Constraint("Equal", 6, 7))
sketch4.addConstraint(Sketcher.Constraint("Equal", 7, 8))
sketch4.addConstraint(Sketcher.Constraint("Equal", 8, 9))
sketch4.addConstraint(Sketcher.Constraint("Equal", 9, 16))
sketch4.addConstraint(Sketcher.Constraint("Equal", 16, 17))
sketch4.addConstraint(Sketcher.Constraint("Equal", 17, 18))
sketch4.addConstraint(Sketcher.Constraint("Equal", 18, 19))
sketch4.addConstraint(Sketcher.Constraint("Equal", 19, 26))
sketch4.addConstraint(Sketcher.Constraint("Equal", 26, 27))
sketch4.addConstraint(Sketcher.Constraint("Equal", 27, 28))
sketch4.addConstraint(Sketcher.Constraint("Equal", 28, 29))
sketch4.addConstraint(Sketcher.Constraint("Equal", 29, 36))
sketch4.addConstraint(Sketcher.Constraint("Equal", 36, 37))
sketch4.addConstraint(Sketcher.Constraint("Equal", 37, 38))
sketch4.addConstraint(Sketcher.Constraint("Equal", 38, 39))
sketch4.addConstraint(Sketcher.Constraint("Symmetric", 9, 3, 26, 3, -1, 1))
sketch4.addConstraint(Sketcher.Constraint("Symmetric", 8, 3, 27, 3, -1, 1))
sketch4.addConstraint(Sketcher.Constraint("Symmetric", 7, 3, 28, 3, -1, 1))
sketch4.addConstraint(Sketcher.Constraint("Symmetric", 6, 3, 29, 3, -1, 1))
sketch4.addConstraint(Sketcher.Constraint("Symmetric", 19, 3, 36, 3, -1, 1))
sketch4.addConstraint(Sketcher.Constraint("Symmetric", 18, 3, 37, 3, -1, 1))
sketch4.addConstraint(Sketcher.Constraint("Symmetric", 17, 3, 38, 3, -1, 1))
sketch4.addConstraint(Sketcher.Constraint("Symmetric", 16, 3, 39, 3, -1, 1))
sketch4.addConstraint(Sketcher.Constraint("Symmetric", 4, 2, 20, 2, -1, 1))
sketch4.addConstraint(Sketcher.Constraint("Symmetric", 0, 2, 22, 2, -1, 1))
sketch4.addConstraint(Sketcher.Constraint("Symmetric", 1, 2, 23, 2, -1, 1))
sketch4.addConstraint(Sketcher.Constraint("Symmetric", 3, 2, 25, 2, -1, 1))
sketch4.addConstraint(Sketcher.Constraint("Symmetric", 11, 2, 30, 2, -1, 1))
sketch4.addConstraint(Sketcher.Constraint("Symmetric", 12, 2, 31, 2, -1, 1))
sketch4.addConstraint(Sketcher.Constraint("Symmetric", 14, 2, 33, 2, -1, 1))
sketch4.addConstraint(Sketcher.Constraint("Symmetric", 15, 2, 34, 2, -1, 1))
sketch4.addConstraint(Sketcher.Constraint("Symmetric", 5, 2, 10, 2, -2))
sketch4.addConstraint(Sketcher.Constraint("Symmetric", 3, 2, 12, 2, -2))
sketch4.addConstraint(Sketcher.Constraint("Symmetric", 1, 2, 14, 2, -2))
sketch4.addConstraint(Sketcher.Constraint("Parallel", 1, 4))
sketch4.addConstraint(Sketcher.Constraint("Perpendicular", 4, 12))
sketch4.addConstraint(Sketcher.Constraint("Parallel", 12, 15))
sketch4.addConstraint(Sketcher.Constraint("Horizontal", 6, 3, 16, 3))
sketch4.addConstraint(Sketcher.Constraint("Horizontal", 7, 3, 17, 3))
sketch4.addConstraint(Sketcher.Constraint("Horizontal", 8, 3, 18, 3))
sketch4.addConstraint(Sketcher.Constraint("Horizontal", 9, 3, 19, 3))
sketch4.addConstraint(Sketcher.Constraint("Horizontal", 4, 2, 11, 2))
sketch4.addConstraint(Sketcher.Constraint("Vertical", 16, 3, 26, 3))
sketch4.addConstraint(Sketcher.Constraint("Vertical", 17, 3, 27, 3))
sketch4.addConstraint(Sketcher.Constraint("Vertical", 18, 3, 28, 3))
sketch4.addConstraint(Sketcher.Constraint("Vertical", 19, 3, 29, 3))
sketch4.addConstraint(Sketcher.Constraint("Equal", 0, 2))
sketch4.addConstraint(Sketcher.Constraint("Equal", 35, 3))
sketch4.addConstraint(Sketcher.Constraint("Diameter", 6, Q("0.125 in")))
sketch4.addConstraint(Sketcher.Constraint("DistanceY", -1, 1, 0, 2, Q("3 in")))
sketch4.addConstraint(Sketcher.Constraint("DistanceY", -1, 1, 1, 2, Q("10 in")))
sketch4.addConstraint(Sketcher.Constraint("DistanceX", 2, 2, -1, 1, Q("10 in")))
sketch4.addConstraint(Sketcher.Constraint("DistanceX", 0, 1, 0, 2, Q("0.75 in")))
sketch4.addConstraint(Sketcher.Constraint("DistanceY", -1, 1, 6, 3, 232.400599))
sketch4.addConstraint(Sketcher.Constraint("DistanceX", 6, 3, -1, 1, 245.49396))
sketch4.addConstraint(Sketcher.Constraint("DistanceX", 8, 3, 7, 3, 14.338238))
sketch4.addConstraint(Sketcher.Constraint("DistanceY", 7, 3, 8, 3, 8.756279))
sketch4.addConstraint(Sketcher.Constraint("DistanceX", 7, 3, 16, 3, 468.925769))
sketch4.addConstraint(Sketcher.Constraint("DistanceX", 6, 3, 16, 3, 481.059232))
sketch4.addConstraint(Sketcher.Constraint("DistanceY", 26, 3, 16, 3, 481.059232))
sketch4.addConstraint(Sketcher.Constraint("DistanceY", 26, 3, 17, 3, 484.810109))
sketch4.setExpression("Constraints[88]", "Params.sketch4_diameter")
sketch4.setExpression("Constraints[92]", "Params.sketch4_width")
pocket3 = body.newObject("PartDesign::Pocket", "Pocket002")
pocket3.Profile = sketch4
pocket3.Type = "ThroughAll"

doc.recompute()
